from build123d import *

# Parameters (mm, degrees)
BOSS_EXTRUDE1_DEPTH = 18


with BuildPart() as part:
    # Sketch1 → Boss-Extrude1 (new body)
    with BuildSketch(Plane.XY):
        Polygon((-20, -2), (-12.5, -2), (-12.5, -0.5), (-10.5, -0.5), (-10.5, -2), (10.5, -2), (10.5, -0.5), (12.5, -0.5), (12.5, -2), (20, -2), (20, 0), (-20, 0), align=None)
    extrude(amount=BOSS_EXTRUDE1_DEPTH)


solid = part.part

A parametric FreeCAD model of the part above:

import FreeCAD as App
import Part
import Sketcher
from FreeCAD import Vector
Q = App.Units.Quantity


def add_polygon(sketch, points):
    """Adds a closed chain of lines whose ends are joined by coincident constraints."""
    first, n = sketch.GeometryCount, len(points)
    for a, b in zip(points, points[1:] + points[:1]):
        sketch.addGeometry(Part.LineSegment(App.Vector(*a, 0), App.Vector(*b, 0)), False)
    for i in range(n):
        sketch.addConstraint(Sketcher.Constraint("Coincident", first + i, 2, first + (i + 1) % n, 1))

doc = App.newDocument("Part")
body = doc.addObject("PartDesign::Body", "Body")

sketch1 = doc.addObject("Sketcher::SketchObject", "Sketch")
body.addObject(sketch1)
sketch1.AttachmentSupport = (doc.XY_Plane, [""])
sketch1.MapMode = "FlatFace"
add_polygon(sketch1, [(-20, -2), (-12.5, -2), (-12.5, -0.5), (-10.5, -0.5), (-10.5, -2), (10.5, -2), (10.5, -0.5), (12.5, -0.5), (12.5, -2), (20, -2), (20, 0), (-20, 0)])
sketch1.addConstraint(Sketcher.Constraint("Horizontal", 0))
sketch1.addConstraint(Sketcher.Constraint("Vertical", 1))
sketch1.addConstraint(Sketcher.Constraint("Horizontal", 2))
sketch1.addConstraint(Sketcher.Constraint("Vertical", 3))
sketch1.addConstraint(Sketcher.Constraint("Horizontal", 4))
sketch1.addConstraint(Sketcher.Constraint("Vertical", 5))
sketch1.addConstraint(Sketcher.Constraint("Horizontal", 6))
sketch1.addConstraint(Sketcher.Constraint("Vertical", 7))
sketch1.addConstraint(Sketcher.Constraint("Horizontal", 8))
sketch1.addConstraint(Sketcher.Constraint("Vertical", 9))
sketch1.addConstraint(Sketcher.Constraint("Horizontal", 10))
sketch1.addConstraint(Sketcher.Constraint("Vertical", 11))
sketch1.addConstraint(Sketcher.Constraint("Symmetric", 9, 2, 10, 2, -1, 1))
sketch1.addConstraint(Sketcher.Constraint("Symmetric", 2, 2, 5, 2, -2))
sketch1.addConstraint(Sketcher.Constraint("Symmetric", 0, 2, 7, 2, -2))
sketch1.addConstraint(Sketcher.Constraint("Horizontal", 0, 2, 3, 2))
sketch1.addConstraint(Sketcher.Constraint("Equal", 6, 9))
sketch1.addConstraint(Sketcher.Constraint("DistanceX", 2, 1, 2, 2, Q("2 mm")))
sketch1.addConstraint(Sketcher.Constraint("DistanceX", 4, 1, 4, 2, Q("21 mm")))
sketch1.addConstraint(Sketcher.Constraint("DistanceX", 10, 2, 10, 1, Q("40 mm")))
sketch1.addConstraint(Sketcher.Constraint("DistanceY", 1, 1, 1, 2, Q("1.5 mm")))
pad1 = doc.addObject("PartDesign::Pad", "Pad")
body.addObject(pad1)
pad1.Profile = sketch1
pad1.Length = 18

doc.recompute()
